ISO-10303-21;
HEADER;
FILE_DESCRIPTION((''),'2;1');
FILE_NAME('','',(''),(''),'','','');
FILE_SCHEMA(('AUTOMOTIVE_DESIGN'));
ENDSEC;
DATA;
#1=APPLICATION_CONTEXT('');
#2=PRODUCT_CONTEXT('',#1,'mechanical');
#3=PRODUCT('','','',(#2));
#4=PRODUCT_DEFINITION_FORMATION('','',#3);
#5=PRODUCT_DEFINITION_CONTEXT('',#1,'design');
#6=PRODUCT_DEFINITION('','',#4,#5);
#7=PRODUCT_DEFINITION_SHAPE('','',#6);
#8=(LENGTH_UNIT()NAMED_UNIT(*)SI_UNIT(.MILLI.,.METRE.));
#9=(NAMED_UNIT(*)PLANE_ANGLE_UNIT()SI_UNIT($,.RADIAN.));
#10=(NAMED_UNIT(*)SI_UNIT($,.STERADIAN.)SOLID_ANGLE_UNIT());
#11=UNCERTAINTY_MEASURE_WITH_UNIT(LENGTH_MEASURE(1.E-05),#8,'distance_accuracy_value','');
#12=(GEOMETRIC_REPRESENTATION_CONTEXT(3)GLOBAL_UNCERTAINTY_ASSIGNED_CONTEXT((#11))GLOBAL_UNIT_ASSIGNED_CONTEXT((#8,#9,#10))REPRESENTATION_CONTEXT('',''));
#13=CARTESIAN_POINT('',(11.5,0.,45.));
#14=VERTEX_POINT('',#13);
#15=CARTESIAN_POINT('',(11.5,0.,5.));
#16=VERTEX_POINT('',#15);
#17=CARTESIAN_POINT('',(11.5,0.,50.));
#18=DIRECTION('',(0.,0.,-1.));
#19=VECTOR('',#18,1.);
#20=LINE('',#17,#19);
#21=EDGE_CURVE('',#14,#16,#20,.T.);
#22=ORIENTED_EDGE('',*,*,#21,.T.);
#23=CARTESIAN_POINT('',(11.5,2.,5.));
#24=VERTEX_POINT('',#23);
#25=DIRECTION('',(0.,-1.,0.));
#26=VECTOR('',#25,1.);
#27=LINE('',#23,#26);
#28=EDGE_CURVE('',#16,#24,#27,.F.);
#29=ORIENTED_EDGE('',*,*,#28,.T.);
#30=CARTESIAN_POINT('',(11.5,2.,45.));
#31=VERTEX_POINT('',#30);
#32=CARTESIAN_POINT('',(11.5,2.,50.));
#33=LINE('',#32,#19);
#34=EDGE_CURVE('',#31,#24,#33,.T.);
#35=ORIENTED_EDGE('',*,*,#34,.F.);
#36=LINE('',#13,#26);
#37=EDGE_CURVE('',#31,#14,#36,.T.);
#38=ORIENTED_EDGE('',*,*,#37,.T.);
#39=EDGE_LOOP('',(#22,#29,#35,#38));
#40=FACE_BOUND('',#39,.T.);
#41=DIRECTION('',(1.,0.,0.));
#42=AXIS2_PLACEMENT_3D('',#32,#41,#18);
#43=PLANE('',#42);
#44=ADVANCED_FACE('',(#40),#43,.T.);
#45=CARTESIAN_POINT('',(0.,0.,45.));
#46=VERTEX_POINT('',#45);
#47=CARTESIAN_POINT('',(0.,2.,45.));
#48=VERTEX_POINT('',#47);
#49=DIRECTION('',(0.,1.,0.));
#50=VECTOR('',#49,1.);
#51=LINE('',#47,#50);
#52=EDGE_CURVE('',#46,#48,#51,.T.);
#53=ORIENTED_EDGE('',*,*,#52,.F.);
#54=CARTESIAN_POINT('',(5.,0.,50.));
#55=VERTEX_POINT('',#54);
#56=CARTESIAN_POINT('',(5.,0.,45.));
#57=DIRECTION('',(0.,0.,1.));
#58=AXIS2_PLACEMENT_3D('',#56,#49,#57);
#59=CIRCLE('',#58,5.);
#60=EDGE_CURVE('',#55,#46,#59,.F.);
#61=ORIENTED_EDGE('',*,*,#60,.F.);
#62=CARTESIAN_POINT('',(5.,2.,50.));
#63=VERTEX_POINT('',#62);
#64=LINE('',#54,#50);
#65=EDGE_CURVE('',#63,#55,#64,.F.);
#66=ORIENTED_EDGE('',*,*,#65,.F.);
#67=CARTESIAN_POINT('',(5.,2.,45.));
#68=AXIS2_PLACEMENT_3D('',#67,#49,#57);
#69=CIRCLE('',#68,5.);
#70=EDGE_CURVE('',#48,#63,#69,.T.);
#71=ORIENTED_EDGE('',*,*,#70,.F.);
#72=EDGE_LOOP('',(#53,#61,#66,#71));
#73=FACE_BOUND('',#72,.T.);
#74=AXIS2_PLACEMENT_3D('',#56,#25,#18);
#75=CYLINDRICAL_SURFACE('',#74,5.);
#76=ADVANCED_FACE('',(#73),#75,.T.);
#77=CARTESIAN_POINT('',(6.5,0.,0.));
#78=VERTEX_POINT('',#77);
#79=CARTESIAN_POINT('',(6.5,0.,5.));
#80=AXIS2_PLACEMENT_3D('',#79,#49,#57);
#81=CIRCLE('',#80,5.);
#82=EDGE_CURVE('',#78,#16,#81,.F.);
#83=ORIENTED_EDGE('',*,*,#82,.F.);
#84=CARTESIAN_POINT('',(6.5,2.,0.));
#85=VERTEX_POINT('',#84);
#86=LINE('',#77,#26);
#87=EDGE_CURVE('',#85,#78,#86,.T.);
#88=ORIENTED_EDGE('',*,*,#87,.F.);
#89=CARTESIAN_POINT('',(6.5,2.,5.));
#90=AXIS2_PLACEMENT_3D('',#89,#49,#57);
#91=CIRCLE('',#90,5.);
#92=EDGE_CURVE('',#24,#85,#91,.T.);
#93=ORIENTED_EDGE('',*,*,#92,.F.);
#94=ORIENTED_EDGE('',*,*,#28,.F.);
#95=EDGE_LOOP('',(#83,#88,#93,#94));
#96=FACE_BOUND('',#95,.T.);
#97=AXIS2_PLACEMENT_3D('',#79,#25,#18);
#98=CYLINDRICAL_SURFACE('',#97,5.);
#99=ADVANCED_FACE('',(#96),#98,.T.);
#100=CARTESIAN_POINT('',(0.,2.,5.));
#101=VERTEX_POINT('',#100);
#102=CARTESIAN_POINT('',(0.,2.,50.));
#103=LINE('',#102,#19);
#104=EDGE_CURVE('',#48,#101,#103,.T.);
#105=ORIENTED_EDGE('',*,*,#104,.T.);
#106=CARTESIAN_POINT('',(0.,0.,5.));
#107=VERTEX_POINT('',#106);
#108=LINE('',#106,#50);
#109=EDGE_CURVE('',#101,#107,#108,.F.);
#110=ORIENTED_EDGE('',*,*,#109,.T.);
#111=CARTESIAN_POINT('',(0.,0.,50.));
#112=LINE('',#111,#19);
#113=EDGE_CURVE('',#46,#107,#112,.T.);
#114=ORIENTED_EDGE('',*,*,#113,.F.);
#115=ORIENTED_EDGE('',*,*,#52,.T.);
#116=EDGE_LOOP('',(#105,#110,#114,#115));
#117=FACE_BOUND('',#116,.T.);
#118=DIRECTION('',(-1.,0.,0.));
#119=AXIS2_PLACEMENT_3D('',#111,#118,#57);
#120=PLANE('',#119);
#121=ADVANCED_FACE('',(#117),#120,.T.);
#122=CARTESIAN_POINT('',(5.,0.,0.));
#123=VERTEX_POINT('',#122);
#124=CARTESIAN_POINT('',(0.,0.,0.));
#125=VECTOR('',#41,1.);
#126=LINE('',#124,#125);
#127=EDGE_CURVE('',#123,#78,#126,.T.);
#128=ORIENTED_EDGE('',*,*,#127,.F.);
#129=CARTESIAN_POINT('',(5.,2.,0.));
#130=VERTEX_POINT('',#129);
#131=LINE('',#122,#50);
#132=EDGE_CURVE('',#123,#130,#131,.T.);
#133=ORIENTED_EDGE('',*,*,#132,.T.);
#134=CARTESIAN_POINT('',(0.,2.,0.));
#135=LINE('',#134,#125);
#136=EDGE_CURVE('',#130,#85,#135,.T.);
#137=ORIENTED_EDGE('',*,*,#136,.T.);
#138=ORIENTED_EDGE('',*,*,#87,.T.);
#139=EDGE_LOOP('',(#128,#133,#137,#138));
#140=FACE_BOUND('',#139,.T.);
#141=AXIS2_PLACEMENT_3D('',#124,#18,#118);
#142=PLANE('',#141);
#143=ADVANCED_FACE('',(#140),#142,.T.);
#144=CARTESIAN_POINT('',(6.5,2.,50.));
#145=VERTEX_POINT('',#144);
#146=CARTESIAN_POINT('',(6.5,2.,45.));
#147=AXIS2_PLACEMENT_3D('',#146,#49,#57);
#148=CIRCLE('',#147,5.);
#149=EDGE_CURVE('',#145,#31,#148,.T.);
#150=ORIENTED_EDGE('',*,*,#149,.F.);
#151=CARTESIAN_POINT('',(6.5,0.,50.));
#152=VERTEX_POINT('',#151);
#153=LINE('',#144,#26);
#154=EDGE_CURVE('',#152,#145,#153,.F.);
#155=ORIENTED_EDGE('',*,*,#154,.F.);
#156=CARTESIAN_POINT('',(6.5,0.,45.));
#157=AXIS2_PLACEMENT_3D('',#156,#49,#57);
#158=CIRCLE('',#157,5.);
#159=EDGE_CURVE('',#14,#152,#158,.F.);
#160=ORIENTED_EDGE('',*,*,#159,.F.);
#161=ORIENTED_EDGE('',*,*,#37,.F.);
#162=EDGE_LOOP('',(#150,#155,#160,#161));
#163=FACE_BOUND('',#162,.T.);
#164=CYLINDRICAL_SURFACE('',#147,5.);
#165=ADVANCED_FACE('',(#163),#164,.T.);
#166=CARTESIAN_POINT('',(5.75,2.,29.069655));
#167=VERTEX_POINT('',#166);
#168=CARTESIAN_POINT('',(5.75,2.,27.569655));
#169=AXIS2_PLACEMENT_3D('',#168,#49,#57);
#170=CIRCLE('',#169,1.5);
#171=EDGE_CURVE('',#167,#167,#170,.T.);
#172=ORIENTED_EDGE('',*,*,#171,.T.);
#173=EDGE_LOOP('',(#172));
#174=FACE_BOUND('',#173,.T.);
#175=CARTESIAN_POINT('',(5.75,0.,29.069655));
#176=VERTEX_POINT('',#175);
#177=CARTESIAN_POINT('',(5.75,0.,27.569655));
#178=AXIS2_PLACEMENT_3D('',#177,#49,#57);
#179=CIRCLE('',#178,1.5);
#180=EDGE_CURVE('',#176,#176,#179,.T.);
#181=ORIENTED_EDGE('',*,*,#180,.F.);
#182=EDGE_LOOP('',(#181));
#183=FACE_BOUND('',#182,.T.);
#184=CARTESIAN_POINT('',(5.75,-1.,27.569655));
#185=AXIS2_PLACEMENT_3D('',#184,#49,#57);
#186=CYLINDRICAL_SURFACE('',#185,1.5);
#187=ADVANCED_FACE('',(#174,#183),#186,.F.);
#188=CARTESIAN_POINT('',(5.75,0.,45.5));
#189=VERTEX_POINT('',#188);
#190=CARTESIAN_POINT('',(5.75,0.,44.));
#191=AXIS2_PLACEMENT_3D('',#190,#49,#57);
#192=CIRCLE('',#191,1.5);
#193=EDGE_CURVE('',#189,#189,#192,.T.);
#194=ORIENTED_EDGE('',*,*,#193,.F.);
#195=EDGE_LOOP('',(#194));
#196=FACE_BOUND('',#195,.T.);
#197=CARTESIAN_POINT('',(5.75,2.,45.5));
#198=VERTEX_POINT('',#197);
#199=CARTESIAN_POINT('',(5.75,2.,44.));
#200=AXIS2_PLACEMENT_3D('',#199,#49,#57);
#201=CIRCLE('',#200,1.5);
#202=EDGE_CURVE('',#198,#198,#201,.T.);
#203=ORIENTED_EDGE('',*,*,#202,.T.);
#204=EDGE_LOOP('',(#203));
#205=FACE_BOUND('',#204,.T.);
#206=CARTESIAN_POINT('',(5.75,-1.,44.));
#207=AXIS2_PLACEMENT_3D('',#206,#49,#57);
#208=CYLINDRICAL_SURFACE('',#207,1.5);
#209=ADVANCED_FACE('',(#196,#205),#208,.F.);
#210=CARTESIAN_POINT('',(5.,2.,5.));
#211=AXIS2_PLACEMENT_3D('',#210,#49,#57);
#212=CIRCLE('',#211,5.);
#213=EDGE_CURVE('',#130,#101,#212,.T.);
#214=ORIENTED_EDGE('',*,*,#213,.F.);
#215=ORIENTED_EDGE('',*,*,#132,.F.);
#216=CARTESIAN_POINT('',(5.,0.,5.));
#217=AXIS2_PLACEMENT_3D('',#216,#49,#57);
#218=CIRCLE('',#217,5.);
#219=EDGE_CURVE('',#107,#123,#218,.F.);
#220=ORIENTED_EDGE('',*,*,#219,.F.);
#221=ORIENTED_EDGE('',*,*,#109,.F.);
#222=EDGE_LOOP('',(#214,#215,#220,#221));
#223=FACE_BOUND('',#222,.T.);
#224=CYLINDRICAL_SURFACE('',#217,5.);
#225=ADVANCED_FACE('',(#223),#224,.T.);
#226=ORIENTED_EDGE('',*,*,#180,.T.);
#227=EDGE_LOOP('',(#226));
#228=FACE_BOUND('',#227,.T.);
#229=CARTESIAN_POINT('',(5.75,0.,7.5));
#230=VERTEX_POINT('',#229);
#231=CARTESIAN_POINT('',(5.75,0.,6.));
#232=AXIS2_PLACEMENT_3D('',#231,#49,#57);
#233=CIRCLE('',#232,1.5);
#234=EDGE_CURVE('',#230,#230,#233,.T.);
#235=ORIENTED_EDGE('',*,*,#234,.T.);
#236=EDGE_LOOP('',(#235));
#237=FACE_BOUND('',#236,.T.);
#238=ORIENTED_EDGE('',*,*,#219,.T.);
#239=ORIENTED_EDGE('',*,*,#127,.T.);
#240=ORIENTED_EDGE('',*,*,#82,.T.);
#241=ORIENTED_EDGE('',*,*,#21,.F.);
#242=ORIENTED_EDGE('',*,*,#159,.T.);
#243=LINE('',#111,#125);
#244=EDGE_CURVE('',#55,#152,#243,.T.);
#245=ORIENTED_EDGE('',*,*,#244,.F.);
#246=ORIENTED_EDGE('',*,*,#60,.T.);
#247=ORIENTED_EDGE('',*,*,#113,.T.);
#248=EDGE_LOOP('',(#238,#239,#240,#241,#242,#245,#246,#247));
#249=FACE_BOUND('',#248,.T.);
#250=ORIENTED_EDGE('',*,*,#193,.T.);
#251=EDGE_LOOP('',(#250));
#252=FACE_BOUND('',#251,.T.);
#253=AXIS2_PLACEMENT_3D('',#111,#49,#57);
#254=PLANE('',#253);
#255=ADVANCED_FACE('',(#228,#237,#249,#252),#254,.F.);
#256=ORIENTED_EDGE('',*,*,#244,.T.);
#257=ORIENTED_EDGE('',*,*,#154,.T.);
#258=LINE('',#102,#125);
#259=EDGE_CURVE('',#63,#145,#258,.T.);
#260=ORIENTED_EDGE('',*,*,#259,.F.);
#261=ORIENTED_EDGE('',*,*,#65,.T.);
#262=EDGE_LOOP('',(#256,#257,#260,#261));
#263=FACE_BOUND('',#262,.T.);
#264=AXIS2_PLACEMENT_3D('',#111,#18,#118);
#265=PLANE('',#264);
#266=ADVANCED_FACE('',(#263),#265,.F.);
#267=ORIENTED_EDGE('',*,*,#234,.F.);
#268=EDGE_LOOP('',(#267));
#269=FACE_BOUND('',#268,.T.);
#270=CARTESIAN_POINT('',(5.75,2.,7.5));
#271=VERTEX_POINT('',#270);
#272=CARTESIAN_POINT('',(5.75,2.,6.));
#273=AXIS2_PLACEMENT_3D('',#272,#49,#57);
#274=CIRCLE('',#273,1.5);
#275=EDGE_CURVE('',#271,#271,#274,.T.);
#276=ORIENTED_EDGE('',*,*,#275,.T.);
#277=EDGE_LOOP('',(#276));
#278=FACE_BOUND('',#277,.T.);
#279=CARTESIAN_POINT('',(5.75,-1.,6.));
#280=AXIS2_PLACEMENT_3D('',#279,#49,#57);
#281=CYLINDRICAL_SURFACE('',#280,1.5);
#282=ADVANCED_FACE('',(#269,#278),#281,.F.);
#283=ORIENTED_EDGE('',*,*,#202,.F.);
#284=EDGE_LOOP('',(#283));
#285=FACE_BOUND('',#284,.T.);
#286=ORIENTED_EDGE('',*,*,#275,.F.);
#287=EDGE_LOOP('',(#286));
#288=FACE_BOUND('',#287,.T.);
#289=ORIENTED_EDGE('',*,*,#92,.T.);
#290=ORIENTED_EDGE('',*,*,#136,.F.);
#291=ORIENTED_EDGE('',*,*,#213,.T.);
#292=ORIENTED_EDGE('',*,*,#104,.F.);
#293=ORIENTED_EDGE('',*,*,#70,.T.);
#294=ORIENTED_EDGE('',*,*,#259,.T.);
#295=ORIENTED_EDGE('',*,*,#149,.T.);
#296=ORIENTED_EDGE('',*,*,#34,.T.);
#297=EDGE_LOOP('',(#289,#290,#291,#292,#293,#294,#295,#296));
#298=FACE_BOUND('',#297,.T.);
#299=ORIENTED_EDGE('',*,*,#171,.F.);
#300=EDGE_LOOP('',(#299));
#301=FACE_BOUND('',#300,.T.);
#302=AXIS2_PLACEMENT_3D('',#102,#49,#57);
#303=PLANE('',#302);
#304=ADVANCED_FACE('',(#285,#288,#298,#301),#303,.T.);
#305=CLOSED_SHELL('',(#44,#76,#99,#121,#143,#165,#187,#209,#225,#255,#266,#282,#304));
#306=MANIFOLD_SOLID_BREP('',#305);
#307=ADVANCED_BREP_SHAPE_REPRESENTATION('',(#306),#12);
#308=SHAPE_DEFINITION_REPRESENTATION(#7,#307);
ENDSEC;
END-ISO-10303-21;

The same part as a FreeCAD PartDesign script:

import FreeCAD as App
import Part
import Sketcher

V = App.Vector
Q = App.Units.Quantity


def edges_at(feature, points):
    """Names of the edges that pass closest to the given points."""
    edges = feature.Shape.Edges
    near = lambda p: min(range(len(edges)), key=lambda i: edges[i].distToShape(Part.Vertex(*p))[0])
    return sorted({f"Edge{near(p) + 1}" for p in points})


def add_polygon(sketch, points):
    """Adds a closed chain of lines whose ends are joined by coincident constraints."""
    first, n = sketch.GeometryCount, len(points)
    for a, b in zip(points, points[1:] + points[:1]):
        sketch.addGeometry(Part.LineSegment(App.Vector(*a, 0), App.Vector(*b, 0)), False)
    for i in range(n):
        sketch.addConstraint(Sketcher.Constraint("Coincident", first + i, 2, first + (i + 1) % n, 1))

doc = App.newDocument("Part")
body = doc.addObject("PartDesign::Body", "Body")

sketch1 = body.newObject("Sketcher::SketchObject", "Sketch")
sketch1.AttachmentSupport = (doc.getObject("XY_Plane"), [""])
sketch1.MapMode = "FlatFace"
add_polygon(sketch1, [(0, 2), (0, 0), (11.5, 0), (11.5, 2)])
sketch1.addConstraint(Sketcher.Constraint("Vertical", 0))
sketch1.addConstraint(Sketcher.Constraint("Horizontal", 1))
sketch1.addConstraint(Sketcher.Constraint("Vertical", 2))
sketch1.addConstraint(Sketcher.Constraint("Horizontal", 3))
sketch1.addConstraint(Sketcher.Constraint("Coincident", 0, 2, -1, 1))
sketch1.addConstraint(Sketcher.Constraint("DistanceY", 0, 2, 0, 1, Q("2 mm")))
sketch1.addConstraint(Sketcher.Constraint("DistanceX", 1, 1, 1, 2, Q("11.5 mm")))
pad1 = body.newObject("PartDesign::Pad", "Pad")
pad1.Profile = sketch1
pad1.Length = 50

sketch2 = body.newObject("Sketcher::SketchObject", "Sketch001")
sketch2.AttachmentSupport = (doc.getObject("XZ_Plane"), [""])
sketch2.MapMode = "FlatFace"
sketch2.AttachmentOffset = App.Placement(V(0, 0, -2), App.Rotation())
sketch2.addGeometry(Part.Circle(V(5.8, 6, 0), V(0, 0, 1), 1.5), False)
sketch2.addGeometry(Part.Circle(V(5.8, 27.6, 0), V(0, 0, 1), 1.5), False)
sketch2.addGeometry(Part.Circle(V(5.8, 44, 0), V(0, 0, 1), 1.5), False)
sketch2.addConstraint(Sketcher.Constraint("Equal", 0, 1))
sketch2.addConstraint(Sketcher.Constraint("Equal", 1, 2))
sketch2.addConstraint(Sketcher.Constraint("Vertical", 0, 3, 1, 3))
sketch2.addConstraint(Sketcher.Constraint("Vertical", 1, 3, 2, 3))
sketch2.addConstraint(Sketcher.Constraint("Diameter", 0, Q("3 mm")))
sketch2.addConstraint(Sketcher.Constraint("DistanceY", -1, 1, 0, 3, Q("6 mm")))
sketch2.addConstraint(Sketcher.Constraint("DistanceY", -1, 1, 2, 3, Q("44 mm")))
sketch2.addConstraint(Sketcher.Constraint("DistanceX", -1, 1, 0, 3, Q("5.75 mm")))
sketch2.addConstraint(Sketcher.Constraint("DistanceY", -1, 1, 1, 3, Q("27.569655 mm")))
pocket1 = body.newObject("PartDesign::Pocket", "Pocket")
pocket1.Profile = sketch2
pocket1.Length = 3
pocket1.Reversed = True
doc.recompute()

fillet = body.newObject("PartDesign::Fillet", "Fillet")
fillet.Base = (pocket1, edges_at(pocket1, [
    (0, 1, 50),
    (0, 1, 0),
    (11.5, 1, 0),
    (11.5, 1, 50),
]))
fillet.Radius = 5

doc.recompute()
